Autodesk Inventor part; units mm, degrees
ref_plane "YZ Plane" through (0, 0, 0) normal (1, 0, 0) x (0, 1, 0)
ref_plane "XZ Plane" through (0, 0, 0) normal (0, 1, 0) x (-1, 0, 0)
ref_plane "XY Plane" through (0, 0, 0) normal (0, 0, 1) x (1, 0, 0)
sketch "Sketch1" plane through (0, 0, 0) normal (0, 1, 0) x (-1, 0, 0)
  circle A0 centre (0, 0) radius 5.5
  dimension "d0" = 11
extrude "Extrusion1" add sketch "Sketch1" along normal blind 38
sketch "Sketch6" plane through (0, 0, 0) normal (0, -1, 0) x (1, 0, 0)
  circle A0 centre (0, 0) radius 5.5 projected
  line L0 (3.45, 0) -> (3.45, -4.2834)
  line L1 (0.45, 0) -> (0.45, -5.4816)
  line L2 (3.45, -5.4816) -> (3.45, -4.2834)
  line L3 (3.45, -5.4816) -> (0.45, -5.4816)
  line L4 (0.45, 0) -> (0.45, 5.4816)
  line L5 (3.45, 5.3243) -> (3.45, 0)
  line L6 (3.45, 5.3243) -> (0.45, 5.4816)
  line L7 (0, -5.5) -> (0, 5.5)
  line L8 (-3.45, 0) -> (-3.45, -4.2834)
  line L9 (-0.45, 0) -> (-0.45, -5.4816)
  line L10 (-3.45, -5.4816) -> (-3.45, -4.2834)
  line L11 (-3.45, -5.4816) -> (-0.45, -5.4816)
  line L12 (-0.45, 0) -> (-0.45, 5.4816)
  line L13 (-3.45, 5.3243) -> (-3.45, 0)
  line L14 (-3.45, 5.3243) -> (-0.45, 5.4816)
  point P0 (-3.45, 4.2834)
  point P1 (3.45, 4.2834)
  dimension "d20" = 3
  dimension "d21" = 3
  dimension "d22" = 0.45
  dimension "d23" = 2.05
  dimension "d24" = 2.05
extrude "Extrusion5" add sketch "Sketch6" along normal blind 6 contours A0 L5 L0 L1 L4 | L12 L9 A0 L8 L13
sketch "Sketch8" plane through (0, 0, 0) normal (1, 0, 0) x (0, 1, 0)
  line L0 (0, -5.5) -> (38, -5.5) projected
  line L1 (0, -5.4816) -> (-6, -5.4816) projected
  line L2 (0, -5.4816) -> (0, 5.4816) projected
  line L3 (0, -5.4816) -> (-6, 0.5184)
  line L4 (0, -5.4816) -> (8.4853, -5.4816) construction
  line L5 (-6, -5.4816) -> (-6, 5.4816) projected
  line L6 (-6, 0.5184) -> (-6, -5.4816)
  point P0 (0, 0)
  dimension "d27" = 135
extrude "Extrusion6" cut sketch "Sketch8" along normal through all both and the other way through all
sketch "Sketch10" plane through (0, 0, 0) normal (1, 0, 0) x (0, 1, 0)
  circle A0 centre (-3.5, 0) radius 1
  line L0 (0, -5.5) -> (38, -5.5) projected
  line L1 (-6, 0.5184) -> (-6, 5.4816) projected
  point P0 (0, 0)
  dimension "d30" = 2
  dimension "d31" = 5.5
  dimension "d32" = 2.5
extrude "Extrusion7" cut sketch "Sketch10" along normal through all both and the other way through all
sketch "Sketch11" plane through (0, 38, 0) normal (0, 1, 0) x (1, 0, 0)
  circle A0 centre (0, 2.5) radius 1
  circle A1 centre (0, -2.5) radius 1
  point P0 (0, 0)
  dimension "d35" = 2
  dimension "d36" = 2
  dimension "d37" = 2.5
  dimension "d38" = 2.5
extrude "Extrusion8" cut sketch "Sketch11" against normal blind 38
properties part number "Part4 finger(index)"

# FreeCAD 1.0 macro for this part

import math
import FreeCAD as App
import Part
import Sketcher


def add_polygon(sketch, points):
    """Adds a closed chain of lines whose ends are joined by coincident constraints."""
    first, n = sketch.GeometryCount, len(points)
    for a, b in zip(points, points[1:] + points[:1]):
        sketch.addGeometry(Part.LineSegment(App.Vector(*a, 0), App.Vector(*b, 0)), False)
    for i in range(n):
        sketch.addConstraint(Sketcher.Constraint("Coincident", first + i, 2, first + (i + 1) % n, 1))

doc = App.newDocument("Part")
params = doc.addObject("Spreadsheet::Sheet", "Params")
for row, (alias, value) in enumerate([
    ("sketch1_diameter", "11 mm"),
    ("pad1_length", "38 mm"),
    ("sketch2_radius", "5.5 mm"),
    ("pad2_length", "6 mm"),
    ("sketch3_width", "6 mm"),
    ("sketch4_diameter", "2 mm"),
    ("sketch5_diameter", "2 mm"),
    ("pocket3_length", "38 mm"),
], start=1):
    params.set(f"A{row}", alias)
    params.set(f"B{row}", "=" + value)
    params.setAlias(f"B{row}", alias)

body = doc.addObject("PartDesign::Body", "Body")

# Sketch on XZ plane
sketch1 = body.newObject("Sketcher::SketchObject", "Sketch")
sketch1.AttachmentSupport = (doc.getObject("XZ_Plane"), [""])
sketch1.MapMode = "FlatFace"
sketch1.addGeometry(Part.Circle(App.Vector(0, 0, 0), App.Vector(0, 0, 1), 5.5), False)
sketch1.addConstraint(Sketcher.Constraint("Coincident", 0, 3, -1, 1))
sketch1.addConstraint(Sketcher.Constraint("Diameter", 0, 11.0))
sketch1.setExpression("Constraints[1]", "Params.sketch1_diameter")
pad1 = body.newObject("PartDesign::Pad", "Pad")
pad1.Profile = sketch1
pad1.setExpression("Length", "Params.pad1_length")
pad1.Reversed = True

# Sketch on XZ plane
sketch2 = body.newObject("Sketcher::SketchObject", "Sketch001")
sketch2.AttachmentSupport = (doc.getObject("XZ_Plane"), [""])
sketch2.MapMode = "FlatFace"
sketch2.addGeometry(Part.ArcOfCircle(Part.Circle(App.Vector(0, 0, 0), App.Vector(0, 0, 1), 5.5), math.radians(51.150805), math.radians(85.306952)), False)
sketch2.addGeometry(Part.LineSegment(App.Vector(0.45, 5.4816, 0), App.Vector(0.45, -5.4816, 0)), False)
sketch2.addGeometry(Part.ArcOfCircle(Part.Circle(App.Vector(0, 0, 0), App.Vector(0, 0, 1), 5.5), math.radians(-85.306952), math.radians(-51.150817)), False)
sketch2.addGeometry(Part.LineSegment(App.Vector(3.45, -4.2834, 0), App.Vector(3.45, 4.283398, 0)), False)
sketch2.addGeometry(Part.LineSegment(App.Vector(-0.45, -5.4816, 0), App.Vector(-0.45, 5.4816, 0)), False)
sketch2.addGeometry(Part.ArcOfCircle(Part.Circle(App.Vector(0, 0, 0), App.Vector(0, 0, 1), 5.5), math.radians(94.693048), math.radians(128.849195)), False)
sketch2.addGeometry(Part.LineSegment(App.Vector(-3.45, 4.283398, 0), App.Vector(-3.45, -4.2834, 0)), False)
sketch2.addGeometry(Part.ArcOfCircle(Part.Circle(App.Vector(0, 0, 0), App.Vector(0, 0, 1), 5.5), math.radians(-128.849183), math.radians(-94.693048)), False)
sketch2.addConstraint(Sketcher.Constraint("Coincident", 0, 2, 1, 1))
sketch2.addConstraint(Sketcher.Constraint("Coincident", 1, 2, 2, 1))
sketch2.addConstraint(Sketcher.Constraint("Coincident", 2, 2, 3, 1))
sketch2.addConstraint(Sketcher.Constraint("Coincident", 3, 2, 0, 1))
sketch2.addConstraint(Sketcher.Constraint("Coincident", 4, 2, 5, 1))
sketch2.addConstraint(Sketcher.Constraint("Coincident", 5, 2, 6, 1))
sketch2.addConstraint(Sketcher.Constraint("Coincident", 6, 2, 7, 1))
sketch2.addConstraint(Sketcher.Constraint("Coincident", 7, 2, 4, 1))
sketch2.addConstraint(Sketcher.Constraint("Vertical", 1))
sketch2.addConstraint(Sketcher.Constraint("Vertical", 3))
sketch2.addConstraint(Sketcher.Constraint("Vertical", 4))
sketch2.addConstraint(Sketcher.Constraint("Vertical", 6))
sketch2.addConstraint(Sketcher.Constraint("Coincident", 0, 3, -1, 1))
sketch2.addConstraint(Sketcher.Constraint("Coincident", 2, 3, -1, 1))
sketch2.addConstraint(Sketcher.Constraint("Coincident", 5, 3, -1, 1))
sketch2.addConstraint(Sketcher.Constraint("Coincident", 7, 3, -1, 1))
sketch2.addConstraint(Sketcher.Constraint("Equal", 0, 2))
sketch2.addConstraint(Sketcher.Constraint("Equal", 2, 5))
sketch2.addConstraint(Sketcher.Constraint("Equal", 5, 7))
sketch2.addConstraint(Sketcher.Constraint("Horizontal", 0, 2, 4, 2))
sketch2.addConstraint(Sketcher.Constraint("Horizontal", 3, 2, 5, 2))
sketch2.addConstraint(Sketcher.Constraint("DistanceX", 1, 2, 2, 2, 3.0))
sketch2.addConstraint(Sketcher.Constraint("Radius", 0, 5.5))
sketch2.addConstraint(Sketcher.Constraint("DistanceX", -1, 1, 0, 2, 0.45))
sketch2.setExpression("Constraints[22]", "Params.sketch2_radius")
pad2 = body.newObject("PartDesign::Pad", "Pad001")
pad2.Profile = sketch2
pad2.setExpression("Length", "Params.pad2_length")

# Sketch on YZ plane
sketch3 = body.newObject("Sketcher::SketchObject", "Sketch002")
sketch3.AttachmentSupport = (doc.getObject("YZ_Plane"), [""])
sketch3.MapMode = "FlatFace"
add_polygon(sketch3, [(-6, -5.4816), (0, -5.4816), (-6, 0.5184)])  # lines 0-2
sketch3.addConstraint(Sketcher.Constraint("Horizontal", 0))
sketch3.addConstraint(Sketcher.Constraint("Vertical", 2))
sketch3.addConstraint(Sketcher.Constraint("PointOnObject", 0, 2, -2))
sketch3.addConstraint(Sketcher.Constraint("Equal", 0, 2))
sketch3.addConstraint(Sketcher.Constraint("DistanceX", 0, 1, 0, 2, 6.0))
sketch3.addConstraint(Sketcher.Constraint("DistanceY", 0, 2, -1, 1, 5.4816))
sketch3.setExpression("Constraints[7]", "Params.sketch3_width")
pocket1 = body.newObject("PartDesign::Pocket", "Pocket")
pocket1.Profile = sketch3
pocket1.Type = "ThroughAll"
pocket1.Midplane = True

# Sketch on YZ plane
sketch4 = body.newObject("Sketcher::SketchObject", "Sketch003")
sketch4.AttachmentSupport = (doc.getObject("YZ_Plane"), [""])
sketch4.MapMode = "FlatFace"
sketch4.addGeometry(Part.Circle(App.Vector(-3.5, 0, 0), App.Vector(0, 0, 1), 1), False)
sketch4.addConstraint(Sketcher.Constraint("PointOnObject", 0, 3, -1))
sketch4.addConstraint(Sketcher.Constraint("Diameter", 0, 2.0))
sketch4.addConstraint(Sketcher.Constraint("DistanceX", 0, 3, -1, 1, 3.5))
sketch4.setExpression("Constraints[1]", "Params.sketch4_diameter")
pocket2 = body.newObject("PartDesign::Pocket", "Pocket001")
pocket2.Profile = sketch4
pocket2.Type = "ThroughAll"
pocket2.Midplane = True

# Sketch on XZ plane
sketch5 = body.newObject("Sketcher::SketchObject", "Sketch004")
sketch5.AttachmentSupport = (doc.getObject("XZ_Plane"), [""])
sketch5.MapMode = "FlatFace"
sketch5.AttachmentOffset = App.Placement(App.Vector(0, 0, -38), App.Rotation())
sketch5.addGeometry(Part.Circle(App.Vector(0, -2.5, 0), App.Vector(0, 0, 1), 1), False)
sketch5.addGeometry(Part.Circle(App.Vector(0, 2.5, 0), App.Vector(0, 0, 1), 1), False)
sketch5.addConstraint(Sketcher.Constraint("Equal", 0, 1))
sketch5.addConstraint(Sketcher.Constraint("Symmetric", 0, 3, 1, 3, -1, 1))
sketch5.addConstraint(Sketcher.Constraint("PointOnObject", 0, 3, -2))
sketch5.addConstraint(Sketcher.Constraint("Diameter", 0, 2.0))
sketch5.addConstraint(Sketcher.Constraint("DistanceY", 0, 3, -1, 1, 2.5))
sketch5.setExpression("Constraints[3]", "Params.sketch5_diameter")
pocket3 = body.newObject("PartDesign::Pocket", "Pocket002")
pocket3.Profile = sketch5
pocket3.setExpression("Length", "Params.pocket3_length")
pocket3.Reversed = True

doc.recompute()
